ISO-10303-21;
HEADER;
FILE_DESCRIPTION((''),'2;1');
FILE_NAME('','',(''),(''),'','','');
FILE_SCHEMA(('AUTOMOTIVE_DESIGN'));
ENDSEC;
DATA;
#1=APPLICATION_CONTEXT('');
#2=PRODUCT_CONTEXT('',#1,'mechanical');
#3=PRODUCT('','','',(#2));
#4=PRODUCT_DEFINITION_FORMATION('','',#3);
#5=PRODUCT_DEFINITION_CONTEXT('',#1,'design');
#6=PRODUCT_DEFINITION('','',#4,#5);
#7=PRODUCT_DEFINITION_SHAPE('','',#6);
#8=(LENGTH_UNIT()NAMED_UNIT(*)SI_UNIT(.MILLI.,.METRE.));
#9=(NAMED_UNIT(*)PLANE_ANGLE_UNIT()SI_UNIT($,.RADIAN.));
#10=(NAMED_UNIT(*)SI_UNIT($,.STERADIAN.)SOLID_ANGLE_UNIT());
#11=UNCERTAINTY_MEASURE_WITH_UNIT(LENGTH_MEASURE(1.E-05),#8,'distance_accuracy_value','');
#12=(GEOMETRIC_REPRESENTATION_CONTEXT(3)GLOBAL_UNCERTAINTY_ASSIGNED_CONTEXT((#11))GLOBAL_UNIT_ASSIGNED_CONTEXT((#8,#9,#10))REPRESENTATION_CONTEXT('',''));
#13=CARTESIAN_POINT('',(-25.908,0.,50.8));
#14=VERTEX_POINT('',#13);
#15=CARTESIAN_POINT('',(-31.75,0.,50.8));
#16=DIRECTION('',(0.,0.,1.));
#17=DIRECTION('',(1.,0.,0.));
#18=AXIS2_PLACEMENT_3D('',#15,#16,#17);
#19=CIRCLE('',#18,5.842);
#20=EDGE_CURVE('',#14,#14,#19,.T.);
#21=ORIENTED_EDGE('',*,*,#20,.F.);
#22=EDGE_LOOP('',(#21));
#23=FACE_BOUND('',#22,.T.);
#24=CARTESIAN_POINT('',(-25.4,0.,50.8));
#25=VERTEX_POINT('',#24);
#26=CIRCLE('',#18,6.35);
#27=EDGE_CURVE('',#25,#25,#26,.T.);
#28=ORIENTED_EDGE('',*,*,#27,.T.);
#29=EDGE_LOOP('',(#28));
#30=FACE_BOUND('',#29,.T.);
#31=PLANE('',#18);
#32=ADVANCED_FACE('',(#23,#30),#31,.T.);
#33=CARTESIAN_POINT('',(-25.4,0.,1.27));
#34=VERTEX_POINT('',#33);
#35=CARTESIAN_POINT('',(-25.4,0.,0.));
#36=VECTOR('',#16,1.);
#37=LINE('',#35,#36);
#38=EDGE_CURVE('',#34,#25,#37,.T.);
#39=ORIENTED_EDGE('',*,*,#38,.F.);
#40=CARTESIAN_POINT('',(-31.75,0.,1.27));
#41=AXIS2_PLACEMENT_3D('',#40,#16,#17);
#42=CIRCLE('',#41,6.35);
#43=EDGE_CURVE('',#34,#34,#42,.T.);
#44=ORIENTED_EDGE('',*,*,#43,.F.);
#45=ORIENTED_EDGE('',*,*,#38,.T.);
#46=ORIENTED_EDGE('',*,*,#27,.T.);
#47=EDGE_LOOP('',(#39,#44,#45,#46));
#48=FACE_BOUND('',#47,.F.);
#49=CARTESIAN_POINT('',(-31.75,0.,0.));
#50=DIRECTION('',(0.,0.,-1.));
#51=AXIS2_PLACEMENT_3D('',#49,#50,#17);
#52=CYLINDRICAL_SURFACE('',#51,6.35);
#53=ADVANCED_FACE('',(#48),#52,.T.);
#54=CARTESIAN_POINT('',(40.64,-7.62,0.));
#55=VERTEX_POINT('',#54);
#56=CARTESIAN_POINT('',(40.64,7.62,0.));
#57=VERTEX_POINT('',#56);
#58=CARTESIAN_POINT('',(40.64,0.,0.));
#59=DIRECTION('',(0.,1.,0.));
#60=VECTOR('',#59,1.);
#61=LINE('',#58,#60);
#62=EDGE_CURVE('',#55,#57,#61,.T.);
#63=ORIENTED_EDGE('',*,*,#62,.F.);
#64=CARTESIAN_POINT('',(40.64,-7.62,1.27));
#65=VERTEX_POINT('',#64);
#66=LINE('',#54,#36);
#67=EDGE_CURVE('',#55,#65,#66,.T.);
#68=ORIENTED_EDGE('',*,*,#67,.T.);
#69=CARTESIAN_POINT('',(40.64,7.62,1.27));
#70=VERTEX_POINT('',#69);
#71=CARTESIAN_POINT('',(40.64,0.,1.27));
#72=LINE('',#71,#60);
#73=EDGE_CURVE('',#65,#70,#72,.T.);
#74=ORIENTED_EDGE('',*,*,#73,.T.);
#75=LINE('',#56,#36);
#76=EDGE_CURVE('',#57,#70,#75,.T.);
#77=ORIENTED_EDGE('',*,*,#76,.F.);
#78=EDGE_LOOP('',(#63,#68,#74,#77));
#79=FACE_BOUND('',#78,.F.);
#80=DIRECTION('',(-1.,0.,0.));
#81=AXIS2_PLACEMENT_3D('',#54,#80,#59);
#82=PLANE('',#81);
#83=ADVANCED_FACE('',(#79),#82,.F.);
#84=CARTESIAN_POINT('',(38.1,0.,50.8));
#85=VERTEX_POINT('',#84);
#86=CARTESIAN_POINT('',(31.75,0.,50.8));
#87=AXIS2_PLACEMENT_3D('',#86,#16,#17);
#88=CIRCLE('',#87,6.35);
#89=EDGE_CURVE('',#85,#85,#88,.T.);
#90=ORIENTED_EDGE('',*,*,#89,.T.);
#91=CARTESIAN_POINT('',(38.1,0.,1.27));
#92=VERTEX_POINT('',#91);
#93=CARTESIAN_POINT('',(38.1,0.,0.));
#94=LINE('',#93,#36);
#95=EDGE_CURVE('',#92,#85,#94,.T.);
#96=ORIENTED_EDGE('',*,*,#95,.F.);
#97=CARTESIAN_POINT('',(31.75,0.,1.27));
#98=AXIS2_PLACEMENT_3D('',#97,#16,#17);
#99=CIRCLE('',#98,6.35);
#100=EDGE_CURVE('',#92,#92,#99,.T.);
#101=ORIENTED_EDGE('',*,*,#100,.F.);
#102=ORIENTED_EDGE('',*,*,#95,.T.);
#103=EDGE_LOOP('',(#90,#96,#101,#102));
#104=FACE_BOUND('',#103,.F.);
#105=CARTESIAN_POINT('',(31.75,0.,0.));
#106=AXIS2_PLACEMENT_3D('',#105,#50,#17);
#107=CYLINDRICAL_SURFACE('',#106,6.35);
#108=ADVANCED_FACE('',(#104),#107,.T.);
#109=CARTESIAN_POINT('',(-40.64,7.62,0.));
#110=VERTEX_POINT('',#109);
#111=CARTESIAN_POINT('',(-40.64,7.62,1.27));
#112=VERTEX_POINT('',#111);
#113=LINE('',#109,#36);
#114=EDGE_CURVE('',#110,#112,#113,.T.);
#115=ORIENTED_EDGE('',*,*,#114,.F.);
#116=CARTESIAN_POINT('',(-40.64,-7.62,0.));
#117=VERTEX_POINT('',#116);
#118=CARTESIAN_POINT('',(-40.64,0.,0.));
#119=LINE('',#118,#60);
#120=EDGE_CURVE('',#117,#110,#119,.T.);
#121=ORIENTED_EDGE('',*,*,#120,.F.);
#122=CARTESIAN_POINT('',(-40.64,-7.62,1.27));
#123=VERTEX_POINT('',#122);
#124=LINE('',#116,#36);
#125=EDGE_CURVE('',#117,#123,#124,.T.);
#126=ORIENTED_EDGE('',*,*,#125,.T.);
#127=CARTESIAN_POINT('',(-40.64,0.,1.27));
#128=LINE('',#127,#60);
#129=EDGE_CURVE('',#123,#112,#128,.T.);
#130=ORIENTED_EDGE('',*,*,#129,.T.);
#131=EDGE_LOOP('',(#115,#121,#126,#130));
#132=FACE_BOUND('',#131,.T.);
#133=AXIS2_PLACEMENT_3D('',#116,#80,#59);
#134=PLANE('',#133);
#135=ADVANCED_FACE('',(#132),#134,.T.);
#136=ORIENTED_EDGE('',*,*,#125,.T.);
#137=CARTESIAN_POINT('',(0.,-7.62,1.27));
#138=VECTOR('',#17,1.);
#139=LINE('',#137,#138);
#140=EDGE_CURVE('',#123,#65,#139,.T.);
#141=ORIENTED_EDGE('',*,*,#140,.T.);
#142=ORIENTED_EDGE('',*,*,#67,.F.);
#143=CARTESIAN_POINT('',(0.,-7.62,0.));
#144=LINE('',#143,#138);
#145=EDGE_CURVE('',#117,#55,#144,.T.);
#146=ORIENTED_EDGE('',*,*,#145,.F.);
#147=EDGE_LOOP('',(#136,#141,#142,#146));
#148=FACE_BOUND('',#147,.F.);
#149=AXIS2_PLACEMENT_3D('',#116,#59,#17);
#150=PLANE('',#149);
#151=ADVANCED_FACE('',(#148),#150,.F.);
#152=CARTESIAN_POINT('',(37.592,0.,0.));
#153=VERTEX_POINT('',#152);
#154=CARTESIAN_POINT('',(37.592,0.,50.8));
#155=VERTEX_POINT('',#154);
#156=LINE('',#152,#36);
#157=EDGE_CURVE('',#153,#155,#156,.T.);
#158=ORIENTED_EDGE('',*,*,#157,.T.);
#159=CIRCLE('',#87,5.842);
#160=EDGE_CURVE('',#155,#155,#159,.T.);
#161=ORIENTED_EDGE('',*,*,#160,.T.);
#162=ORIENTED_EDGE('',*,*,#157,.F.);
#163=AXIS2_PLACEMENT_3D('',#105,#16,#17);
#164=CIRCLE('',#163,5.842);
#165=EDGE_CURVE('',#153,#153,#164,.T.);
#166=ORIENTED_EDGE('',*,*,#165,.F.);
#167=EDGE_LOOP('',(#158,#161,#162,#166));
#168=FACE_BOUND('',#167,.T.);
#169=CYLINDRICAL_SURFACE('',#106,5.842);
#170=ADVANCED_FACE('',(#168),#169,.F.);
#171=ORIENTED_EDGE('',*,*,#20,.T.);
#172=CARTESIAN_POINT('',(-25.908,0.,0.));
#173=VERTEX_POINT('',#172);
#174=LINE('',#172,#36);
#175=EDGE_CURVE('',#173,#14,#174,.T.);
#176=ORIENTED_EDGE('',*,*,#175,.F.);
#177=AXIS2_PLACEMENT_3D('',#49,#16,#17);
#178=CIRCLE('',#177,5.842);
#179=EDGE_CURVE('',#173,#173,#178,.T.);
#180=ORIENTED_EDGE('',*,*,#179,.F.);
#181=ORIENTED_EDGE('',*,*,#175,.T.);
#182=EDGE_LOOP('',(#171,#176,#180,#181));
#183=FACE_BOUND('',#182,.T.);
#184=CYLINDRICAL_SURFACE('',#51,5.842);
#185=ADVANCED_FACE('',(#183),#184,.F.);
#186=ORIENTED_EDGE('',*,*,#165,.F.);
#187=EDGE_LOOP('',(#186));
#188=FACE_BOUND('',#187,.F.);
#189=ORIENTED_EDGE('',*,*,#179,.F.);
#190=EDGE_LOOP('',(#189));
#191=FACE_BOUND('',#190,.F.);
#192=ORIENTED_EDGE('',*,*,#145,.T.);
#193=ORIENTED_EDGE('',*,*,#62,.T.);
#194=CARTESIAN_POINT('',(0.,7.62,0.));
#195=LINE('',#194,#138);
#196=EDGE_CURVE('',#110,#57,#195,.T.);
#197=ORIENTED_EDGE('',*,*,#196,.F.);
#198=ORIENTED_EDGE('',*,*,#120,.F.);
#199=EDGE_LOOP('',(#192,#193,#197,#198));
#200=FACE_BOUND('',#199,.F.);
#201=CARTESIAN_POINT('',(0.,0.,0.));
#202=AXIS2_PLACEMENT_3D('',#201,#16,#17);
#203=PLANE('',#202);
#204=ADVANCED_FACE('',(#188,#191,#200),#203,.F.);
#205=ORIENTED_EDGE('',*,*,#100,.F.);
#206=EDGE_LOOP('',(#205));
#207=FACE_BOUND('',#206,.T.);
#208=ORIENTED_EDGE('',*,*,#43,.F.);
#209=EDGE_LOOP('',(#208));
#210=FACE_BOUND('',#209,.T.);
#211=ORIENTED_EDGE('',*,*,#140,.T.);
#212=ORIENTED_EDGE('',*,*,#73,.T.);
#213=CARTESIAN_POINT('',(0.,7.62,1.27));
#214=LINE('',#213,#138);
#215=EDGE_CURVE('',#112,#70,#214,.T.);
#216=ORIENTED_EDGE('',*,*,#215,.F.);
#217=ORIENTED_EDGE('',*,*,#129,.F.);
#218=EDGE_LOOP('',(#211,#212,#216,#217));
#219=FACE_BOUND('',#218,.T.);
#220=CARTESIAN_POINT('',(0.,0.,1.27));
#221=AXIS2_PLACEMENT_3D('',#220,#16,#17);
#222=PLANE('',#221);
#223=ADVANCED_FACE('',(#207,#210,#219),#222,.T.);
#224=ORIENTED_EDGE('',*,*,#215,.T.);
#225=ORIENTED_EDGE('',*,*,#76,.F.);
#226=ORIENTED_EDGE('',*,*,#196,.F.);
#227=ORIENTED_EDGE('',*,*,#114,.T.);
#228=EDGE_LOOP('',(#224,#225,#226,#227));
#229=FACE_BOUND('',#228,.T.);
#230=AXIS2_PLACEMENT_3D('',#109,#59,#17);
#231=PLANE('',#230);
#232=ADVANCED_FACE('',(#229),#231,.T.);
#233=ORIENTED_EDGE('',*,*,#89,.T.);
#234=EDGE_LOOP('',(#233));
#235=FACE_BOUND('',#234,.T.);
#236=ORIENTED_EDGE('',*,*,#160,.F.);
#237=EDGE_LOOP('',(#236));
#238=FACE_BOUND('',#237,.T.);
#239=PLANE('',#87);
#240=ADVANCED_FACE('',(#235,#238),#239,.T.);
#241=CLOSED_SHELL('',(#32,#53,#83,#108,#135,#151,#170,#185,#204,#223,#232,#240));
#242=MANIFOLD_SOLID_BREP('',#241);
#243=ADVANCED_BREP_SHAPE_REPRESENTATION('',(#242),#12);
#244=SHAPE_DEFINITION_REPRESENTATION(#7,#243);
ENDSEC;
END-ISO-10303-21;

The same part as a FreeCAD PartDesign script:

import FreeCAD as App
import Part
import Sketcher

V = App.Vector
Q = App.Units.Quantity

doc = App.newDocument("Part")
body = doc.addObject("PartDesign::Body", "Body")

# Sketch on XY plane
sketch1 = body.newObject("Sketcher::SketchObject", "Sketch")
sketch1.AttachmentSupport = (doc.getObject("XY_Plane"), [""])
sketch1.MapMode = "FlatFace"
sketch1.addGeometry(Part.Circle(V(-31.75, 0, 0), V(0, 0, 1), 6.35), False)
sketch1.addGeometry(Part.Circle(V(-31.75, 0, 0), V(0, 0, 1), 5.842), False)
sketch1.addConstraint(Sketcher.Constraint("Coincident", 1, 3, 0, 3))
sketch1.addConstraint(Sketcher.Constraint("PointOnObject", 0, 3, -1))
sketch1.addConstraint(Sketcher.Constraint("Diameter", 0, Q("0.5 in")))
sketch1.addConstraint(Sketcher.Constraint("Diameter", 1, Q("0.46 in")))
sketch1.addConstraint(Sketcher.Constraint("DistanceX", 0, 3, -1, 1, Q("1.25 in")))
pad1 = body.newObject("PartDesign::Pad", "Pad")
pad1.Profile = sketch1
pad1.Length = Q("2 in")
body2 = doc.addObject("PartDesign::Body", "Body001")

# Sketch on XY plane
sketch2 = body2.newObject("Sketcher::SketchObject", "Sketch001")
sketch2.AttachmentSupport = (doc.getObject("XY_Plane001"), [""])
sketch2.MapMode = "FlatFace"
sketch2.addGeometry(Part.Circle(V(31.75, 0, 0), V(0, 0, 1), 6.35), False)
sketch2.addGeometry(Part.Circle(V(31.75, 0, 0), V(0, 0, 1), 5.842), False)
sketch2.addConstraint(Sketcher.Constraint("Coincident", 1, 3, 0, 3))
sketch2.addConstraint(Sketcher.Constraint("PointOnObject", 0, 3, -1))
sketch2.addConstraint(Sketcher.Constraint("Diameter", 0, Q("0.5 in")))
sketch2.addConstraint(Sketcher.Constraint("Diameter", 1, Q("0.46 in")))
sketch2.addConstraint(Sketcher.Constraint("DistanceX", -1, 1, 0, 3, Q("1.25 in")))
pad2 = body2.newObject("PartDesign::Pad", "Pad001")
pad2.Profile = sketch2
pad2.Length = Q("2 in")
body.AllowCompound = True
doc.recompute()

boolean = body.newObject("PartDesign::Boolean", "Boolean")
boolean.Type = "Fuse"
boolean.addObjects([body2])

# Sketch on XY plane
sketch3 = body.newObject("Sketcher::SketchObject", "Sketch002")
sketch3.AttachmentSupport = (doc.getObject("XY_Plane"), [""])
sketch3.MapMode = "FlatFace"
sketch3.addGeometry(Part.LineSegment(V(-40.64, 7.62, 0), V(-40.64, -7.62, 0)), False)
sketch3.addGeometry(Part.LineSegment(V(-40.64, -7.62, 0), V(40.64, -7.62, 0)), False)
sketch3.addGeometry(Part.LineSegment(V(40.64, -7.62, 0), V(40.64, 7.62, 0)), False)
sketch3.addGeometry(Part.LineSegment(V(40.64, 7.62, 0), V(-40.64, 7.62, 0)), False)
sketch3.addGeometry(Part.Circle(V(-31.75, 0, 0), V(0, 0, 1), 6.35), False)
sketch3.addGeometry(Part.Circle(V(31.75, 0, 0), V(0, 0, 1), 6.35), False)
sketch3.addConstraint(Sketcher.Constraint("Coincident", 0, 2, 1, 1))
sketch3.addConstraint(Sketcher.Constraint("Coincident", 1, 2, 2, 1))
sketch3.addConstraint(Sketcher.Constraint("Coincident", 2, 2, 3, 1))
sketch3.addConstraint(Sketcher.Constraint("Coincident", 3, 2, 0, 1))
sketch3.addConstraint(Sketcher.Constraint("Vertical", 0))
sketch3.addConstraint(Sketcher.Constraint("Horizontal", 1))
sketch3.addConstraint(Sketcher.Constraint("Vertical", 2))
sketch3.addConstraint(Sketcher.Constraint("Horizontal", 3))
sketch3.addConstraint(Sketcher.Constraint("Equal", 4, 5))
sketch3.addConstraint(Sketcher.Constraint("Symmetric", 4, 3, 5, 3, -1, 1))
sketch3.addConstraint(Sketcher.Constraint("Symmetric", 0, 2, 2, 2, -1, 1))
sketch3.addConstraint(Sketcher.Constraint("PointOnObject", 4, 3, -1))
sketch3.addConstraint(Sketcher.Constraint("Diameter", 4, Q("0.5 in")))
sketch3.addConstraint(Sketcher.Constraint("DistanceX", 1, 1, 1, 2, Q("3.2 in")))
sketch3.addConstraint(Sketcher.Constraint("DistanceY", 0, 2, 0, 1, Q("0.6 in")))
sketch3.addConstraint(Sketcher.Constraint("DistanceX", 4, 3, 5, 3, Q("2.5 in")))
pad3 = body.newObject("PartDesign::Pad", "Pad002")
pad3.Profile = sketch3
pad3.Length = Q("0.05 in")

doc.recompute()
